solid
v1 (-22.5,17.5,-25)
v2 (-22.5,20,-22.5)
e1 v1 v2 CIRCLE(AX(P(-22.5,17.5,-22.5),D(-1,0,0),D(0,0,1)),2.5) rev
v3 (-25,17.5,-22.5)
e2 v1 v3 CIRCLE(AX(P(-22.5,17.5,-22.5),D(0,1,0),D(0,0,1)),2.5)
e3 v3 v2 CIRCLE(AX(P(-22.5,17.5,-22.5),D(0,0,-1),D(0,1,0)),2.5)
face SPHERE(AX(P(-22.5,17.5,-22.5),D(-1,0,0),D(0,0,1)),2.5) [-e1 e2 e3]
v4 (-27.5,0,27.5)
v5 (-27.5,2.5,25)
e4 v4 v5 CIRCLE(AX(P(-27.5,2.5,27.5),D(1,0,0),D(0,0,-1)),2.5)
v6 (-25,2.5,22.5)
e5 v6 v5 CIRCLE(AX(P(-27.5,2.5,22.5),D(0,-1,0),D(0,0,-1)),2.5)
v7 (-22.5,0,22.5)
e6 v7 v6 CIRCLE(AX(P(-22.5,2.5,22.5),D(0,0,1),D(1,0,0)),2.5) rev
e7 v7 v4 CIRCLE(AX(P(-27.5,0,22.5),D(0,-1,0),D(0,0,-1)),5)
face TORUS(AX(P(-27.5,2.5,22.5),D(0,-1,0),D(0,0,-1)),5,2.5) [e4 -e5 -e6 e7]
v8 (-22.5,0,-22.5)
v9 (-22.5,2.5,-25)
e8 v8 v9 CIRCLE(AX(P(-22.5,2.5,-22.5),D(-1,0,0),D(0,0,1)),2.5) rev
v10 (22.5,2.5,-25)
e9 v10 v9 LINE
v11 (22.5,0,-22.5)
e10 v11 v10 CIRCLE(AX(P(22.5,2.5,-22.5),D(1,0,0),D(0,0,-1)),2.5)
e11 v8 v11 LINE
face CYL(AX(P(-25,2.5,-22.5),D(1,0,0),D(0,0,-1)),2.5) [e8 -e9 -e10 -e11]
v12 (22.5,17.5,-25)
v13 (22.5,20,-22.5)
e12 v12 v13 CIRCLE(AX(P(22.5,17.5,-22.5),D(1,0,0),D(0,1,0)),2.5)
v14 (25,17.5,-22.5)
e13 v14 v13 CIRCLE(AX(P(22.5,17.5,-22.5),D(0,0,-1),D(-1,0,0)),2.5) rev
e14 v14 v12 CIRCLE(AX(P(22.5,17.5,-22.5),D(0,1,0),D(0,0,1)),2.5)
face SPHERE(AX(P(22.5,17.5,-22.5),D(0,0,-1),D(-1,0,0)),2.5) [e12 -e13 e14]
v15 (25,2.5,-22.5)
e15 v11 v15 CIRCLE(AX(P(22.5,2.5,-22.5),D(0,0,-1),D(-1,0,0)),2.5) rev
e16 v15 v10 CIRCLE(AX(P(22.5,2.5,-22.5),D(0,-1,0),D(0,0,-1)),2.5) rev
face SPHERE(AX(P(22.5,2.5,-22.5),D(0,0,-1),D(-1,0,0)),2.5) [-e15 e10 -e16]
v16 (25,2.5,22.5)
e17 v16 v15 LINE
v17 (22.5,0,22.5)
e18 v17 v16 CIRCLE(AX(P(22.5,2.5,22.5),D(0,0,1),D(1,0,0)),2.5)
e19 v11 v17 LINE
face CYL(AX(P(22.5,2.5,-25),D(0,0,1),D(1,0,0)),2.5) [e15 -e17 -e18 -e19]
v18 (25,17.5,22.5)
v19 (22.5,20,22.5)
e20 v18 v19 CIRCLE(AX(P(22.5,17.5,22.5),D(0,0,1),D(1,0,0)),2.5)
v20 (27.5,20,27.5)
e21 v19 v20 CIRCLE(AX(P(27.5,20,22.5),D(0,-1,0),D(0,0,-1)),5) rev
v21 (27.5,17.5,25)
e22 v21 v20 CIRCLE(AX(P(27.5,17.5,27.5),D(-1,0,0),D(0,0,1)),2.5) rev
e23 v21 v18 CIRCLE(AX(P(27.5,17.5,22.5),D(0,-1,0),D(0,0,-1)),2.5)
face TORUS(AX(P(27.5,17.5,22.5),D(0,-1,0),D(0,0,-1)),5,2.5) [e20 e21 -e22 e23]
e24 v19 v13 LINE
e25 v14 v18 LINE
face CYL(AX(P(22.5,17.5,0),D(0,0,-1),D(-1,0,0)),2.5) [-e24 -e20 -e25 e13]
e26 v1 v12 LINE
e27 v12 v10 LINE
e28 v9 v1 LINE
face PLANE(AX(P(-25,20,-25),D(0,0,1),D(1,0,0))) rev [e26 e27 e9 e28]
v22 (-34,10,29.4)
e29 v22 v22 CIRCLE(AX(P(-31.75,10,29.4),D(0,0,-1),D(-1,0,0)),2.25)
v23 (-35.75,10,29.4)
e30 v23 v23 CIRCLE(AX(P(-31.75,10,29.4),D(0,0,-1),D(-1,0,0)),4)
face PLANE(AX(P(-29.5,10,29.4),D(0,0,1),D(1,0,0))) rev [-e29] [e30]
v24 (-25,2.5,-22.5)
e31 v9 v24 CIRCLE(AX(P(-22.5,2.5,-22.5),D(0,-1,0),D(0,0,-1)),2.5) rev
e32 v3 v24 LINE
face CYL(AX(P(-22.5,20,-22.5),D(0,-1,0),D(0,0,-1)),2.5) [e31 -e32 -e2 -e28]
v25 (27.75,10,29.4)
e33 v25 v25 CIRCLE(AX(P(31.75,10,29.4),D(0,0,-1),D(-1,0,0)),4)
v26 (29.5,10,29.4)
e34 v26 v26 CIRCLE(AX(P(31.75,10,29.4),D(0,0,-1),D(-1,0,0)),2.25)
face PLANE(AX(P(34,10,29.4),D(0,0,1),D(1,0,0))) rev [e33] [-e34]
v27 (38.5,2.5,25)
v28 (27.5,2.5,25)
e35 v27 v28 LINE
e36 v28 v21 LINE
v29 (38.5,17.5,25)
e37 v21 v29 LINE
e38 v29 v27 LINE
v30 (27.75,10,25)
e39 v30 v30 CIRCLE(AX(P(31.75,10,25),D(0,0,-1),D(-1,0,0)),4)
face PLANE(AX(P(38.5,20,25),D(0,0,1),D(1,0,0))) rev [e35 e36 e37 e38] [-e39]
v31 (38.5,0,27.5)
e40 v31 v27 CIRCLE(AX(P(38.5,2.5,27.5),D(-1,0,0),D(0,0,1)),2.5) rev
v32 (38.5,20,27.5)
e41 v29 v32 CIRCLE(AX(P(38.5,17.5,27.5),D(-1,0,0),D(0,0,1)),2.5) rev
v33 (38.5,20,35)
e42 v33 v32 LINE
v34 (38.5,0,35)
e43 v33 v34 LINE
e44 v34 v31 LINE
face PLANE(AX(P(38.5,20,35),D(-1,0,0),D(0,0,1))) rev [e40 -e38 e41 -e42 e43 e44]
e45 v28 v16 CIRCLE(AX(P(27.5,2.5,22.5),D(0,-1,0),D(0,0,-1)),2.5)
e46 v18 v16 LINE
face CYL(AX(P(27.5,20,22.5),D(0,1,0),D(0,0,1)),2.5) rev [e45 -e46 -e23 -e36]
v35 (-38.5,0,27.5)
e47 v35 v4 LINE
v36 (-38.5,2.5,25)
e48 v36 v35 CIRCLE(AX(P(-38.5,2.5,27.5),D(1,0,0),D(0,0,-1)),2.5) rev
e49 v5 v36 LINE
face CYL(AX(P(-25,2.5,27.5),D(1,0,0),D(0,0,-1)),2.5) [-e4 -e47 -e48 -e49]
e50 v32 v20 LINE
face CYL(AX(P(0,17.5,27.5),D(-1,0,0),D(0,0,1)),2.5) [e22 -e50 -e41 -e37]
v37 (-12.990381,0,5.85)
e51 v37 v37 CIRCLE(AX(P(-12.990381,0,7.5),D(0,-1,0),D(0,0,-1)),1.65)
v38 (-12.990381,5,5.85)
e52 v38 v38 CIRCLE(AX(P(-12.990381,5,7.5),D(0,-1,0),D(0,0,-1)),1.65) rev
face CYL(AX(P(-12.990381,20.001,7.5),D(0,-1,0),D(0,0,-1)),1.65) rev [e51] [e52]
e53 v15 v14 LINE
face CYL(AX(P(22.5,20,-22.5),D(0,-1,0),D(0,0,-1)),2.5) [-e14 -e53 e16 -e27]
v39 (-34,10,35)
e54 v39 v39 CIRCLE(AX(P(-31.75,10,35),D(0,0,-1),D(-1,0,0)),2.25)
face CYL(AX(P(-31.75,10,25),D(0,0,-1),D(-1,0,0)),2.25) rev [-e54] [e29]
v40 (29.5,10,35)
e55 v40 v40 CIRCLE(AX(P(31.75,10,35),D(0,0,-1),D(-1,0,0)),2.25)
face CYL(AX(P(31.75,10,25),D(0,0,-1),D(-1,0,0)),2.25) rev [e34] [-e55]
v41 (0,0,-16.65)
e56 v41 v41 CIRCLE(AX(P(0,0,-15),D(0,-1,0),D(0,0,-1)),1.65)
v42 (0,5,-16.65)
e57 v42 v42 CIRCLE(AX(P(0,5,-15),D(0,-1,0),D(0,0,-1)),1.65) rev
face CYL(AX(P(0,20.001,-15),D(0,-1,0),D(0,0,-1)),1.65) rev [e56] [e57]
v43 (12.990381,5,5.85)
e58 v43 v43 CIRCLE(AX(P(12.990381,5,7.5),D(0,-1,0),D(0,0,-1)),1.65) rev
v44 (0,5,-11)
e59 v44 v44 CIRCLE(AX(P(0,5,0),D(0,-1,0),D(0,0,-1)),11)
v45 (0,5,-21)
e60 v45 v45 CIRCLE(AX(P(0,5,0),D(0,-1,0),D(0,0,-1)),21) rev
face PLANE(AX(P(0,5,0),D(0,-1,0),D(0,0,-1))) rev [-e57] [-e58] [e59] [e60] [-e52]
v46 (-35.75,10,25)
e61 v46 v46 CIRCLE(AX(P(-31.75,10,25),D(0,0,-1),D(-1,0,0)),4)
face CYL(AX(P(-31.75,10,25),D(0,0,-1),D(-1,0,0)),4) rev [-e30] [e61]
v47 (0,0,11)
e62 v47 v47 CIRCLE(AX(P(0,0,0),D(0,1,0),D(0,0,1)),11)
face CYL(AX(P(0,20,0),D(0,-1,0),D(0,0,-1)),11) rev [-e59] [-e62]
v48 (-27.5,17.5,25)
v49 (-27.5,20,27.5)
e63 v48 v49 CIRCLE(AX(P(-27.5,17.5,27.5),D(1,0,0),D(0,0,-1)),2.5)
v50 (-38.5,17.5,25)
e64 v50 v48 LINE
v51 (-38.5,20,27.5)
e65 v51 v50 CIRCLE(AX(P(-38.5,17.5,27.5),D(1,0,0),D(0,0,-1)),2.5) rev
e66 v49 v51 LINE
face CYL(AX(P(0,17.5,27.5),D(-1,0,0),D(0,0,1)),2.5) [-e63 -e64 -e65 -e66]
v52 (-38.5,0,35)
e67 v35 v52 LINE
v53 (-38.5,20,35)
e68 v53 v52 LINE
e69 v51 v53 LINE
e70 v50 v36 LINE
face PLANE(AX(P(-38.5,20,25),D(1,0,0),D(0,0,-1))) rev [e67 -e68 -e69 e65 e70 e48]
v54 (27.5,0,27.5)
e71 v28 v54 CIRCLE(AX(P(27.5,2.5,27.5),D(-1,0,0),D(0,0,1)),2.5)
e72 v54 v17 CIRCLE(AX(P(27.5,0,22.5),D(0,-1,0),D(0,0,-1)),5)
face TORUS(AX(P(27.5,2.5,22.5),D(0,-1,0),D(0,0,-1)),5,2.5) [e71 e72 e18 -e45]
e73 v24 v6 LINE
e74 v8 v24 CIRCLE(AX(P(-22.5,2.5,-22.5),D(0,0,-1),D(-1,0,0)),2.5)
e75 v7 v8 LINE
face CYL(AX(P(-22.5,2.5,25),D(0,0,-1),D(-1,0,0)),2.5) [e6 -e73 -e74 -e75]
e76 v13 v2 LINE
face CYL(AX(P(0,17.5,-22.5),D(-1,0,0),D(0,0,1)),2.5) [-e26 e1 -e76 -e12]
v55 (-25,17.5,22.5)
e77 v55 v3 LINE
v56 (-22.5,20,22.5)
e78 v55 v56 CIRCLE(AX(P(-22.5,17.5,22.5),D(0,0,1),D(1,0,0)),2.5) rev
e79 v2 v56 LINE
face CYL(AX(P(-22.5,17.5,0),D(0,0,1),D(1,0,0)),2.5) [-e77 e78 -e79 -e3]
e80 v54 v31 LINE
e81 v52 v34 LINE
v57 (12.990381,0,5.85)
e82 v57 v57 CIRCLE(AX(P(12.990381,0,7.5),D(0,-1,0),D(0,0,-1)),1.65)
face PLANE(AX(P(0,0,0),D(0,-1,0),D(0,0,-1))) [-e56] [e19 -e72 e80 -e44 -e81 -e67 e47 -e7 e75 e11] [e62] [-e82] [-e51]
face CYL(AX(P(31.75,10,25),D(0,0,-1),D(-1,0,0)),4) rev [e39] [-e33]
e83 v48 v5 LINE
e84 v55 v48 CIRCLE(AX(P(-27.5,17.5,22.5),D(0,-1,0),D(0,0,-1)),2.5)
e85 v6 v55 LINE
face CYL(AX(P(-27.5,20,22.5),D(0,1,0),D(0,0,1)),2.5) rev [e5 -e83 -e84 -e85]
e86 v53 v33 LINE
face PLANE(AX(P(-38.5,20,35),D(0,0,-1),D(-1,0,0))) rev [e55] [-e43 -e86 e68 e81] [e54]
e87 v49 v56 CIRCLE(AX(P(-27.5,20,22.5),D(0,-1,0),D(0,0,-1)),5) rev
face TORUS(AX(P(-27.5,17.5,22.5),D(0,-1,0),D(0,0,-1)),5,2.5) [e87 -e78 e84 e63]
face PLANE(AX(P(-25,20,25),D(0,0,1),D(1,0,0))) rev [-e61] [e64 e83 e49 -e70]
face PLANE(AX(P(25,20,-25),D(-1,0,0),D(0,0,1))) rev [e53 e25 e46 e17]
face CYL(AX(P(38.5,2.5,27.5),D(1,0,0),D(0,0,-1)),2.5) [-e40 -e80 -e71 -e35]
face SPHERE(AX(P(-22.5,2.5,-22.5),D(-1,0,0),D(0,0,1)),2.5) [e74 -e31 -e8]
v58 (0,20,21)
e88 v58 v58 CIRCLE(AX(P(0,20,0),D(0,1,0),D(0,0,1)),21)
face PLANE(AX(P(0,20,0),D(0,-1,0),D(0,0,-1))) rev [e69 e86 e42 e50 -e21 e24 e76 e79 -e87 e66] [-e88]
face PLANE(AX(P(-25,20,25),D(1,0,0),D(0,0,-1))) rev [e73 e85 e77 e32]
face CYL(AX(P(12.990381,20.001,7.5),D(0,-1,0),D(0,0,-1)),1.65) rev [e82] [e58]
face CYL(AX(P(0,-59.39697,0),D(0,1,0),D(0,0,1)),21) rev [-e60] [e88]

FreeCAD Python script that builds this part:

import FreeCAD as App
import Part
import Sketcher


def edges_at(feature, points):
    """Names of the edges that pass closest to the given points."""
    edges = feature.Shape.Edges
    near = lambda p: min(range(len(edges)), key=lambda i: edges[i].distToShape(Part.Vertex(*p))[0])
    return sorted({f"Edge{near(p) + 1}" for p in points})


def add_polygon(sketch, points):
    """Adds a closed chain of lines whose ends are joined by coincident constraints."""
    first, n = sketch.GeometryCount, len(points)
    for a, b in zip(points, points[1:] + points[:1]):
        sketch.addGeometry(Part.LineSegment(App.Vector(*a, 0), App.Vector(*b, 0)), False)
    for i in range(n):
        sketch.addConstraint(Sketcher.Constraint("Coincident", first + i, 2, first + (i + 1) % n, 1))

doc = App.newDocument("Part")
body = doc.addObject("PartDesign::Body", "Body")

# Sketch on XZ plane
sketch1 = body.newObject("Sketcher::SketchObject", "Sketch")
sketch1.AttachmentSupport = (doc.getObject("XZ_Plane"), [""])
sketch1.MapMode = "FlatFace"
add_polygon(sketch1, [(-25, 25), (-38.5, 25), (-38.5, 35), (38.5, 35), (38.5, 25), (25, 25), (25, -25), (-25, -25)])  # lines 0-7
sketch1.addGeometry(Part.Circle(App.Vector(0, 0, 0), App.Vector(0, 0, 1), 11), False)  # 8
sketch1.addConstraint(Sketcher.Constraint("Horizontal", 0))
sketch1.addConstraint(Sketcher.Constraint("Vertical", 1))
sketch1.addConstraint(Sketcher.Constraint("Horizontal", 2))
sketch1.addConstraint(Sketcher.Constraint("Vertical", 3))
sketch1.addConstraint(Sketcher.Constraint("Horizontal", 4))
sketch1.addConstraint(Sketcher.Constraint("Vertical", 5))
sketch1.addConstraint(Sketcher.Constraint("Horizontal", 6))
sketch1.addConstraint(Sketcher.Constraint("Vertical", 7))
sketch1.addConstraint(Sketcher.Constraint("Coincident", 8, 3, -1, 1))
sketch1.addConstraint(Sketcher.Constraint("Symmetric", 4, 2, 6, 2, -1, 1))
sketch1.addConstraint(Sketcher.Constraint("Symmetric", 0, 2, 3, 2, -2))
sketch1.addConstraint(Sketcher.Constraint("Equal", 6, 5))
sketch1.addConstraint(Sketcher.Constraint("Diameter", 8, 22.0))
sketch1.addConstraint(Sketcher.Constraint("DistanceX", 2, 1, 2, 2, 77.0))
sketch1.addConstraint(Sketcher.Constraint("DistanceX", 6, 2, 6, 1, 50.0))
sketch1.addConstraint(Sketcher.Constraint("DistanceY", 1, 1, 1, 2, 10.0))
pad1 = body.newObject("PartDesign::Pad", "Pad")
pad1.Profile = sketch1
pad1.Length = 20
pad1.Reversed = True

# Sketch on XZ plane
sketch2 = body.newObject("Sketcher::SketchObject", "Sketch001")
sketch2.AttachmentSupport = (doc.getObject("XZ_Plane"), [""])
sketch2.MapMode = "FlatFace"
sketch2.AttachmentOffset = App.Placement(App.Vector(0, 0, -20), App.Rotation())
sketch2.addGeometry(Part.Circle(App.Vector(0, 0, 0), App.Vector(0, 0, 1), 21), False)
sketch2.addConstraint(Sketcher.Constraint("Coincident", 0, 3, -1, 1))
sketch2.addConstraint(Sketcher.Constraint("Diameter", 0, 42.0))
pocket1 = body.newObject("PartDesign::Pocket", "Pocket")
pocket1.Profile = sketch2
pocket1.Length = 15
pocket1.Reversed = True

# Sketch on XY plane
sketch3 = body.newObject("Sketcher::SketchObject", "Sketch002")
sketch3.AttachmentSupport = (doc.getObject("XY_Plane"), [""])
sketch3.MapMode = "FlatFace"
sketch3.AttachmentOffset = App.Placement(App.Vector(0, 0, 25), App.Rotation())
sketch3.addGeometry(Part.Circle(App.Vector(31.75, 10, 0), App.Vector(0, 0, 1), 2.25), False)
sketch3.addGeometry(Part.Circle(App.Vector(-31.75, 10, 0), App.Vector(0, 0, 1), 2.25), False)
sketch3.addConstraint(Sketcher.Constraint("Equal", 0, 1))
sketch3.addConstraint(Sketcher.Constraint("Symmetric", 0, 3, 1, 3, -2))
sketch3.addConstraint(Sketcher.Constraint("Diameter", 0, 4.5))
sketch3.addConstraint(Sketcher.Constraint("DistanceY", -1, 1, 0, 3, 10.0))
sketch3.addConstraint(Sketcher.Constraint("DistanceX", 1, 3, 0, 3, 63.5))
doc.recompute()
hole = body.newObject("PartDesign::Hole", "Hole")
hole.Profile = sketch3
hole.ThreadType = "None"
hole.Diameter = 4.5
hole.DepthType = "ThroughAll"
hole.HoleCutType = "Counterbore"
hole.HoleCutDiameter = 8
hole.HoleCutDepth = 4.4
hole.Reversed = True

# Sketch on XZ plane
sketch4 = body.newObject("Sketcher::SketchObject", "Sketch003")
sketch4.AttachmentSupport = (doc.getObject("XZ_Plane"), [""])
sketch4.MapMode = "FlatFace"
sketch4.addGeometry(Part.Circle(App.Vector(12.990381, 7.5, 0), App.Vector(0, 0, 1), 1.65), False)
sketch4.addConstraint(Sketcher.Constraint("Diameter", 0, 3.3))
sketch4.addConstraint(Sketcher.Constraint("DistanceY", -1, 1, 0, 3, 7.5))
sketch4.addConstraint(Sketcher.Constraint("DistanceX", -1, 1, 0, 3, 12.990381))
pocket2 = body.newObject("PartDesign::Pocket", "Pocket001")
pocket2.Profile = sketch4
pocket2.Type = "UpToFirst"

# Sketch on XZ plane
sketch5 = body.newObject("Sketcher::SketchObject", "Sketch004")
sketch5.AttachmentSupport = (doc.getObject("XZ_Plane"), [""])
sketch5.MapMode = "FlatFace"
sketch5.addGeometry(Part.Circle(App.Vector(-12.990381, 7.5, 0), App.Vector(0, 0, 1), 1.65), False)
sketch5.addConstraint(Sketcher.Constraint("Diameter", 0, 3.3))
sketch5.addConstraint(Sketcher.Constraint("DistanceY", -1, 1, 0, 3, 7.5))
sketch5.addConstraint(Sketcher.Constraint("DistanceX", 0, 3, -1, 1, 12.990381))
pocket3 = body.newObject("PartDesign::Pocket", "Pocket002")
pocket3.Profile = sketch5
pocket3.Type = "UpToFirst"

# Sketch on XZ plane
sketch6 = body.newObject("Sketcher::SketchObject", "Sketch005")
sketch6.AttachmentSupport = (doc.getObject("XZ_Plane"), [""])
sketch6.MapMode = "FlatFace"
sketch6.addGeometry(Part.Circle(App.Vector(0, -15, 0), App.Vector(0, 0, 1), 1.65), False)
sketch6.addConstraint(Sketcher.Constraint("PointOnObject", 0, 3, -2))
sketch6.addConstraint(Sketcher.Constraint("Diameter", 0, 3.3))
sketch6.addConstraint(Sketcher.Constraint("DistanceY", 0, 3, -1, 1, 15.0))
pocket4 = body.newObject("PartDesign::Pocket", "Pocket003")
pocket4.Profile = sketch6
pocket4.Type = "UpToFirst"
doc.recompute()

fillet = body.newObject("PartDesign::Fillet", "Fillet")
fillet.Base = (pocket4, edges_at(pocket4, [
    (-31.75, 0, 25),
    (-25, 0, 0),
    (0, 0, -25),
    (-31.75, 20, 25),
    (25, 10, -25),
    (25, 10, 25),
    (-25, 10, 25),
    (-25, 10, -25),
    (31.75, 20, 25),
    (25, 20, 0),
    (0, 20, -25),
    (25, 0, 0),
    (-25, 20, 0),
    (31.75, 0, 25),
]))
fillet.Radius = 2.5

doc.recompute()
